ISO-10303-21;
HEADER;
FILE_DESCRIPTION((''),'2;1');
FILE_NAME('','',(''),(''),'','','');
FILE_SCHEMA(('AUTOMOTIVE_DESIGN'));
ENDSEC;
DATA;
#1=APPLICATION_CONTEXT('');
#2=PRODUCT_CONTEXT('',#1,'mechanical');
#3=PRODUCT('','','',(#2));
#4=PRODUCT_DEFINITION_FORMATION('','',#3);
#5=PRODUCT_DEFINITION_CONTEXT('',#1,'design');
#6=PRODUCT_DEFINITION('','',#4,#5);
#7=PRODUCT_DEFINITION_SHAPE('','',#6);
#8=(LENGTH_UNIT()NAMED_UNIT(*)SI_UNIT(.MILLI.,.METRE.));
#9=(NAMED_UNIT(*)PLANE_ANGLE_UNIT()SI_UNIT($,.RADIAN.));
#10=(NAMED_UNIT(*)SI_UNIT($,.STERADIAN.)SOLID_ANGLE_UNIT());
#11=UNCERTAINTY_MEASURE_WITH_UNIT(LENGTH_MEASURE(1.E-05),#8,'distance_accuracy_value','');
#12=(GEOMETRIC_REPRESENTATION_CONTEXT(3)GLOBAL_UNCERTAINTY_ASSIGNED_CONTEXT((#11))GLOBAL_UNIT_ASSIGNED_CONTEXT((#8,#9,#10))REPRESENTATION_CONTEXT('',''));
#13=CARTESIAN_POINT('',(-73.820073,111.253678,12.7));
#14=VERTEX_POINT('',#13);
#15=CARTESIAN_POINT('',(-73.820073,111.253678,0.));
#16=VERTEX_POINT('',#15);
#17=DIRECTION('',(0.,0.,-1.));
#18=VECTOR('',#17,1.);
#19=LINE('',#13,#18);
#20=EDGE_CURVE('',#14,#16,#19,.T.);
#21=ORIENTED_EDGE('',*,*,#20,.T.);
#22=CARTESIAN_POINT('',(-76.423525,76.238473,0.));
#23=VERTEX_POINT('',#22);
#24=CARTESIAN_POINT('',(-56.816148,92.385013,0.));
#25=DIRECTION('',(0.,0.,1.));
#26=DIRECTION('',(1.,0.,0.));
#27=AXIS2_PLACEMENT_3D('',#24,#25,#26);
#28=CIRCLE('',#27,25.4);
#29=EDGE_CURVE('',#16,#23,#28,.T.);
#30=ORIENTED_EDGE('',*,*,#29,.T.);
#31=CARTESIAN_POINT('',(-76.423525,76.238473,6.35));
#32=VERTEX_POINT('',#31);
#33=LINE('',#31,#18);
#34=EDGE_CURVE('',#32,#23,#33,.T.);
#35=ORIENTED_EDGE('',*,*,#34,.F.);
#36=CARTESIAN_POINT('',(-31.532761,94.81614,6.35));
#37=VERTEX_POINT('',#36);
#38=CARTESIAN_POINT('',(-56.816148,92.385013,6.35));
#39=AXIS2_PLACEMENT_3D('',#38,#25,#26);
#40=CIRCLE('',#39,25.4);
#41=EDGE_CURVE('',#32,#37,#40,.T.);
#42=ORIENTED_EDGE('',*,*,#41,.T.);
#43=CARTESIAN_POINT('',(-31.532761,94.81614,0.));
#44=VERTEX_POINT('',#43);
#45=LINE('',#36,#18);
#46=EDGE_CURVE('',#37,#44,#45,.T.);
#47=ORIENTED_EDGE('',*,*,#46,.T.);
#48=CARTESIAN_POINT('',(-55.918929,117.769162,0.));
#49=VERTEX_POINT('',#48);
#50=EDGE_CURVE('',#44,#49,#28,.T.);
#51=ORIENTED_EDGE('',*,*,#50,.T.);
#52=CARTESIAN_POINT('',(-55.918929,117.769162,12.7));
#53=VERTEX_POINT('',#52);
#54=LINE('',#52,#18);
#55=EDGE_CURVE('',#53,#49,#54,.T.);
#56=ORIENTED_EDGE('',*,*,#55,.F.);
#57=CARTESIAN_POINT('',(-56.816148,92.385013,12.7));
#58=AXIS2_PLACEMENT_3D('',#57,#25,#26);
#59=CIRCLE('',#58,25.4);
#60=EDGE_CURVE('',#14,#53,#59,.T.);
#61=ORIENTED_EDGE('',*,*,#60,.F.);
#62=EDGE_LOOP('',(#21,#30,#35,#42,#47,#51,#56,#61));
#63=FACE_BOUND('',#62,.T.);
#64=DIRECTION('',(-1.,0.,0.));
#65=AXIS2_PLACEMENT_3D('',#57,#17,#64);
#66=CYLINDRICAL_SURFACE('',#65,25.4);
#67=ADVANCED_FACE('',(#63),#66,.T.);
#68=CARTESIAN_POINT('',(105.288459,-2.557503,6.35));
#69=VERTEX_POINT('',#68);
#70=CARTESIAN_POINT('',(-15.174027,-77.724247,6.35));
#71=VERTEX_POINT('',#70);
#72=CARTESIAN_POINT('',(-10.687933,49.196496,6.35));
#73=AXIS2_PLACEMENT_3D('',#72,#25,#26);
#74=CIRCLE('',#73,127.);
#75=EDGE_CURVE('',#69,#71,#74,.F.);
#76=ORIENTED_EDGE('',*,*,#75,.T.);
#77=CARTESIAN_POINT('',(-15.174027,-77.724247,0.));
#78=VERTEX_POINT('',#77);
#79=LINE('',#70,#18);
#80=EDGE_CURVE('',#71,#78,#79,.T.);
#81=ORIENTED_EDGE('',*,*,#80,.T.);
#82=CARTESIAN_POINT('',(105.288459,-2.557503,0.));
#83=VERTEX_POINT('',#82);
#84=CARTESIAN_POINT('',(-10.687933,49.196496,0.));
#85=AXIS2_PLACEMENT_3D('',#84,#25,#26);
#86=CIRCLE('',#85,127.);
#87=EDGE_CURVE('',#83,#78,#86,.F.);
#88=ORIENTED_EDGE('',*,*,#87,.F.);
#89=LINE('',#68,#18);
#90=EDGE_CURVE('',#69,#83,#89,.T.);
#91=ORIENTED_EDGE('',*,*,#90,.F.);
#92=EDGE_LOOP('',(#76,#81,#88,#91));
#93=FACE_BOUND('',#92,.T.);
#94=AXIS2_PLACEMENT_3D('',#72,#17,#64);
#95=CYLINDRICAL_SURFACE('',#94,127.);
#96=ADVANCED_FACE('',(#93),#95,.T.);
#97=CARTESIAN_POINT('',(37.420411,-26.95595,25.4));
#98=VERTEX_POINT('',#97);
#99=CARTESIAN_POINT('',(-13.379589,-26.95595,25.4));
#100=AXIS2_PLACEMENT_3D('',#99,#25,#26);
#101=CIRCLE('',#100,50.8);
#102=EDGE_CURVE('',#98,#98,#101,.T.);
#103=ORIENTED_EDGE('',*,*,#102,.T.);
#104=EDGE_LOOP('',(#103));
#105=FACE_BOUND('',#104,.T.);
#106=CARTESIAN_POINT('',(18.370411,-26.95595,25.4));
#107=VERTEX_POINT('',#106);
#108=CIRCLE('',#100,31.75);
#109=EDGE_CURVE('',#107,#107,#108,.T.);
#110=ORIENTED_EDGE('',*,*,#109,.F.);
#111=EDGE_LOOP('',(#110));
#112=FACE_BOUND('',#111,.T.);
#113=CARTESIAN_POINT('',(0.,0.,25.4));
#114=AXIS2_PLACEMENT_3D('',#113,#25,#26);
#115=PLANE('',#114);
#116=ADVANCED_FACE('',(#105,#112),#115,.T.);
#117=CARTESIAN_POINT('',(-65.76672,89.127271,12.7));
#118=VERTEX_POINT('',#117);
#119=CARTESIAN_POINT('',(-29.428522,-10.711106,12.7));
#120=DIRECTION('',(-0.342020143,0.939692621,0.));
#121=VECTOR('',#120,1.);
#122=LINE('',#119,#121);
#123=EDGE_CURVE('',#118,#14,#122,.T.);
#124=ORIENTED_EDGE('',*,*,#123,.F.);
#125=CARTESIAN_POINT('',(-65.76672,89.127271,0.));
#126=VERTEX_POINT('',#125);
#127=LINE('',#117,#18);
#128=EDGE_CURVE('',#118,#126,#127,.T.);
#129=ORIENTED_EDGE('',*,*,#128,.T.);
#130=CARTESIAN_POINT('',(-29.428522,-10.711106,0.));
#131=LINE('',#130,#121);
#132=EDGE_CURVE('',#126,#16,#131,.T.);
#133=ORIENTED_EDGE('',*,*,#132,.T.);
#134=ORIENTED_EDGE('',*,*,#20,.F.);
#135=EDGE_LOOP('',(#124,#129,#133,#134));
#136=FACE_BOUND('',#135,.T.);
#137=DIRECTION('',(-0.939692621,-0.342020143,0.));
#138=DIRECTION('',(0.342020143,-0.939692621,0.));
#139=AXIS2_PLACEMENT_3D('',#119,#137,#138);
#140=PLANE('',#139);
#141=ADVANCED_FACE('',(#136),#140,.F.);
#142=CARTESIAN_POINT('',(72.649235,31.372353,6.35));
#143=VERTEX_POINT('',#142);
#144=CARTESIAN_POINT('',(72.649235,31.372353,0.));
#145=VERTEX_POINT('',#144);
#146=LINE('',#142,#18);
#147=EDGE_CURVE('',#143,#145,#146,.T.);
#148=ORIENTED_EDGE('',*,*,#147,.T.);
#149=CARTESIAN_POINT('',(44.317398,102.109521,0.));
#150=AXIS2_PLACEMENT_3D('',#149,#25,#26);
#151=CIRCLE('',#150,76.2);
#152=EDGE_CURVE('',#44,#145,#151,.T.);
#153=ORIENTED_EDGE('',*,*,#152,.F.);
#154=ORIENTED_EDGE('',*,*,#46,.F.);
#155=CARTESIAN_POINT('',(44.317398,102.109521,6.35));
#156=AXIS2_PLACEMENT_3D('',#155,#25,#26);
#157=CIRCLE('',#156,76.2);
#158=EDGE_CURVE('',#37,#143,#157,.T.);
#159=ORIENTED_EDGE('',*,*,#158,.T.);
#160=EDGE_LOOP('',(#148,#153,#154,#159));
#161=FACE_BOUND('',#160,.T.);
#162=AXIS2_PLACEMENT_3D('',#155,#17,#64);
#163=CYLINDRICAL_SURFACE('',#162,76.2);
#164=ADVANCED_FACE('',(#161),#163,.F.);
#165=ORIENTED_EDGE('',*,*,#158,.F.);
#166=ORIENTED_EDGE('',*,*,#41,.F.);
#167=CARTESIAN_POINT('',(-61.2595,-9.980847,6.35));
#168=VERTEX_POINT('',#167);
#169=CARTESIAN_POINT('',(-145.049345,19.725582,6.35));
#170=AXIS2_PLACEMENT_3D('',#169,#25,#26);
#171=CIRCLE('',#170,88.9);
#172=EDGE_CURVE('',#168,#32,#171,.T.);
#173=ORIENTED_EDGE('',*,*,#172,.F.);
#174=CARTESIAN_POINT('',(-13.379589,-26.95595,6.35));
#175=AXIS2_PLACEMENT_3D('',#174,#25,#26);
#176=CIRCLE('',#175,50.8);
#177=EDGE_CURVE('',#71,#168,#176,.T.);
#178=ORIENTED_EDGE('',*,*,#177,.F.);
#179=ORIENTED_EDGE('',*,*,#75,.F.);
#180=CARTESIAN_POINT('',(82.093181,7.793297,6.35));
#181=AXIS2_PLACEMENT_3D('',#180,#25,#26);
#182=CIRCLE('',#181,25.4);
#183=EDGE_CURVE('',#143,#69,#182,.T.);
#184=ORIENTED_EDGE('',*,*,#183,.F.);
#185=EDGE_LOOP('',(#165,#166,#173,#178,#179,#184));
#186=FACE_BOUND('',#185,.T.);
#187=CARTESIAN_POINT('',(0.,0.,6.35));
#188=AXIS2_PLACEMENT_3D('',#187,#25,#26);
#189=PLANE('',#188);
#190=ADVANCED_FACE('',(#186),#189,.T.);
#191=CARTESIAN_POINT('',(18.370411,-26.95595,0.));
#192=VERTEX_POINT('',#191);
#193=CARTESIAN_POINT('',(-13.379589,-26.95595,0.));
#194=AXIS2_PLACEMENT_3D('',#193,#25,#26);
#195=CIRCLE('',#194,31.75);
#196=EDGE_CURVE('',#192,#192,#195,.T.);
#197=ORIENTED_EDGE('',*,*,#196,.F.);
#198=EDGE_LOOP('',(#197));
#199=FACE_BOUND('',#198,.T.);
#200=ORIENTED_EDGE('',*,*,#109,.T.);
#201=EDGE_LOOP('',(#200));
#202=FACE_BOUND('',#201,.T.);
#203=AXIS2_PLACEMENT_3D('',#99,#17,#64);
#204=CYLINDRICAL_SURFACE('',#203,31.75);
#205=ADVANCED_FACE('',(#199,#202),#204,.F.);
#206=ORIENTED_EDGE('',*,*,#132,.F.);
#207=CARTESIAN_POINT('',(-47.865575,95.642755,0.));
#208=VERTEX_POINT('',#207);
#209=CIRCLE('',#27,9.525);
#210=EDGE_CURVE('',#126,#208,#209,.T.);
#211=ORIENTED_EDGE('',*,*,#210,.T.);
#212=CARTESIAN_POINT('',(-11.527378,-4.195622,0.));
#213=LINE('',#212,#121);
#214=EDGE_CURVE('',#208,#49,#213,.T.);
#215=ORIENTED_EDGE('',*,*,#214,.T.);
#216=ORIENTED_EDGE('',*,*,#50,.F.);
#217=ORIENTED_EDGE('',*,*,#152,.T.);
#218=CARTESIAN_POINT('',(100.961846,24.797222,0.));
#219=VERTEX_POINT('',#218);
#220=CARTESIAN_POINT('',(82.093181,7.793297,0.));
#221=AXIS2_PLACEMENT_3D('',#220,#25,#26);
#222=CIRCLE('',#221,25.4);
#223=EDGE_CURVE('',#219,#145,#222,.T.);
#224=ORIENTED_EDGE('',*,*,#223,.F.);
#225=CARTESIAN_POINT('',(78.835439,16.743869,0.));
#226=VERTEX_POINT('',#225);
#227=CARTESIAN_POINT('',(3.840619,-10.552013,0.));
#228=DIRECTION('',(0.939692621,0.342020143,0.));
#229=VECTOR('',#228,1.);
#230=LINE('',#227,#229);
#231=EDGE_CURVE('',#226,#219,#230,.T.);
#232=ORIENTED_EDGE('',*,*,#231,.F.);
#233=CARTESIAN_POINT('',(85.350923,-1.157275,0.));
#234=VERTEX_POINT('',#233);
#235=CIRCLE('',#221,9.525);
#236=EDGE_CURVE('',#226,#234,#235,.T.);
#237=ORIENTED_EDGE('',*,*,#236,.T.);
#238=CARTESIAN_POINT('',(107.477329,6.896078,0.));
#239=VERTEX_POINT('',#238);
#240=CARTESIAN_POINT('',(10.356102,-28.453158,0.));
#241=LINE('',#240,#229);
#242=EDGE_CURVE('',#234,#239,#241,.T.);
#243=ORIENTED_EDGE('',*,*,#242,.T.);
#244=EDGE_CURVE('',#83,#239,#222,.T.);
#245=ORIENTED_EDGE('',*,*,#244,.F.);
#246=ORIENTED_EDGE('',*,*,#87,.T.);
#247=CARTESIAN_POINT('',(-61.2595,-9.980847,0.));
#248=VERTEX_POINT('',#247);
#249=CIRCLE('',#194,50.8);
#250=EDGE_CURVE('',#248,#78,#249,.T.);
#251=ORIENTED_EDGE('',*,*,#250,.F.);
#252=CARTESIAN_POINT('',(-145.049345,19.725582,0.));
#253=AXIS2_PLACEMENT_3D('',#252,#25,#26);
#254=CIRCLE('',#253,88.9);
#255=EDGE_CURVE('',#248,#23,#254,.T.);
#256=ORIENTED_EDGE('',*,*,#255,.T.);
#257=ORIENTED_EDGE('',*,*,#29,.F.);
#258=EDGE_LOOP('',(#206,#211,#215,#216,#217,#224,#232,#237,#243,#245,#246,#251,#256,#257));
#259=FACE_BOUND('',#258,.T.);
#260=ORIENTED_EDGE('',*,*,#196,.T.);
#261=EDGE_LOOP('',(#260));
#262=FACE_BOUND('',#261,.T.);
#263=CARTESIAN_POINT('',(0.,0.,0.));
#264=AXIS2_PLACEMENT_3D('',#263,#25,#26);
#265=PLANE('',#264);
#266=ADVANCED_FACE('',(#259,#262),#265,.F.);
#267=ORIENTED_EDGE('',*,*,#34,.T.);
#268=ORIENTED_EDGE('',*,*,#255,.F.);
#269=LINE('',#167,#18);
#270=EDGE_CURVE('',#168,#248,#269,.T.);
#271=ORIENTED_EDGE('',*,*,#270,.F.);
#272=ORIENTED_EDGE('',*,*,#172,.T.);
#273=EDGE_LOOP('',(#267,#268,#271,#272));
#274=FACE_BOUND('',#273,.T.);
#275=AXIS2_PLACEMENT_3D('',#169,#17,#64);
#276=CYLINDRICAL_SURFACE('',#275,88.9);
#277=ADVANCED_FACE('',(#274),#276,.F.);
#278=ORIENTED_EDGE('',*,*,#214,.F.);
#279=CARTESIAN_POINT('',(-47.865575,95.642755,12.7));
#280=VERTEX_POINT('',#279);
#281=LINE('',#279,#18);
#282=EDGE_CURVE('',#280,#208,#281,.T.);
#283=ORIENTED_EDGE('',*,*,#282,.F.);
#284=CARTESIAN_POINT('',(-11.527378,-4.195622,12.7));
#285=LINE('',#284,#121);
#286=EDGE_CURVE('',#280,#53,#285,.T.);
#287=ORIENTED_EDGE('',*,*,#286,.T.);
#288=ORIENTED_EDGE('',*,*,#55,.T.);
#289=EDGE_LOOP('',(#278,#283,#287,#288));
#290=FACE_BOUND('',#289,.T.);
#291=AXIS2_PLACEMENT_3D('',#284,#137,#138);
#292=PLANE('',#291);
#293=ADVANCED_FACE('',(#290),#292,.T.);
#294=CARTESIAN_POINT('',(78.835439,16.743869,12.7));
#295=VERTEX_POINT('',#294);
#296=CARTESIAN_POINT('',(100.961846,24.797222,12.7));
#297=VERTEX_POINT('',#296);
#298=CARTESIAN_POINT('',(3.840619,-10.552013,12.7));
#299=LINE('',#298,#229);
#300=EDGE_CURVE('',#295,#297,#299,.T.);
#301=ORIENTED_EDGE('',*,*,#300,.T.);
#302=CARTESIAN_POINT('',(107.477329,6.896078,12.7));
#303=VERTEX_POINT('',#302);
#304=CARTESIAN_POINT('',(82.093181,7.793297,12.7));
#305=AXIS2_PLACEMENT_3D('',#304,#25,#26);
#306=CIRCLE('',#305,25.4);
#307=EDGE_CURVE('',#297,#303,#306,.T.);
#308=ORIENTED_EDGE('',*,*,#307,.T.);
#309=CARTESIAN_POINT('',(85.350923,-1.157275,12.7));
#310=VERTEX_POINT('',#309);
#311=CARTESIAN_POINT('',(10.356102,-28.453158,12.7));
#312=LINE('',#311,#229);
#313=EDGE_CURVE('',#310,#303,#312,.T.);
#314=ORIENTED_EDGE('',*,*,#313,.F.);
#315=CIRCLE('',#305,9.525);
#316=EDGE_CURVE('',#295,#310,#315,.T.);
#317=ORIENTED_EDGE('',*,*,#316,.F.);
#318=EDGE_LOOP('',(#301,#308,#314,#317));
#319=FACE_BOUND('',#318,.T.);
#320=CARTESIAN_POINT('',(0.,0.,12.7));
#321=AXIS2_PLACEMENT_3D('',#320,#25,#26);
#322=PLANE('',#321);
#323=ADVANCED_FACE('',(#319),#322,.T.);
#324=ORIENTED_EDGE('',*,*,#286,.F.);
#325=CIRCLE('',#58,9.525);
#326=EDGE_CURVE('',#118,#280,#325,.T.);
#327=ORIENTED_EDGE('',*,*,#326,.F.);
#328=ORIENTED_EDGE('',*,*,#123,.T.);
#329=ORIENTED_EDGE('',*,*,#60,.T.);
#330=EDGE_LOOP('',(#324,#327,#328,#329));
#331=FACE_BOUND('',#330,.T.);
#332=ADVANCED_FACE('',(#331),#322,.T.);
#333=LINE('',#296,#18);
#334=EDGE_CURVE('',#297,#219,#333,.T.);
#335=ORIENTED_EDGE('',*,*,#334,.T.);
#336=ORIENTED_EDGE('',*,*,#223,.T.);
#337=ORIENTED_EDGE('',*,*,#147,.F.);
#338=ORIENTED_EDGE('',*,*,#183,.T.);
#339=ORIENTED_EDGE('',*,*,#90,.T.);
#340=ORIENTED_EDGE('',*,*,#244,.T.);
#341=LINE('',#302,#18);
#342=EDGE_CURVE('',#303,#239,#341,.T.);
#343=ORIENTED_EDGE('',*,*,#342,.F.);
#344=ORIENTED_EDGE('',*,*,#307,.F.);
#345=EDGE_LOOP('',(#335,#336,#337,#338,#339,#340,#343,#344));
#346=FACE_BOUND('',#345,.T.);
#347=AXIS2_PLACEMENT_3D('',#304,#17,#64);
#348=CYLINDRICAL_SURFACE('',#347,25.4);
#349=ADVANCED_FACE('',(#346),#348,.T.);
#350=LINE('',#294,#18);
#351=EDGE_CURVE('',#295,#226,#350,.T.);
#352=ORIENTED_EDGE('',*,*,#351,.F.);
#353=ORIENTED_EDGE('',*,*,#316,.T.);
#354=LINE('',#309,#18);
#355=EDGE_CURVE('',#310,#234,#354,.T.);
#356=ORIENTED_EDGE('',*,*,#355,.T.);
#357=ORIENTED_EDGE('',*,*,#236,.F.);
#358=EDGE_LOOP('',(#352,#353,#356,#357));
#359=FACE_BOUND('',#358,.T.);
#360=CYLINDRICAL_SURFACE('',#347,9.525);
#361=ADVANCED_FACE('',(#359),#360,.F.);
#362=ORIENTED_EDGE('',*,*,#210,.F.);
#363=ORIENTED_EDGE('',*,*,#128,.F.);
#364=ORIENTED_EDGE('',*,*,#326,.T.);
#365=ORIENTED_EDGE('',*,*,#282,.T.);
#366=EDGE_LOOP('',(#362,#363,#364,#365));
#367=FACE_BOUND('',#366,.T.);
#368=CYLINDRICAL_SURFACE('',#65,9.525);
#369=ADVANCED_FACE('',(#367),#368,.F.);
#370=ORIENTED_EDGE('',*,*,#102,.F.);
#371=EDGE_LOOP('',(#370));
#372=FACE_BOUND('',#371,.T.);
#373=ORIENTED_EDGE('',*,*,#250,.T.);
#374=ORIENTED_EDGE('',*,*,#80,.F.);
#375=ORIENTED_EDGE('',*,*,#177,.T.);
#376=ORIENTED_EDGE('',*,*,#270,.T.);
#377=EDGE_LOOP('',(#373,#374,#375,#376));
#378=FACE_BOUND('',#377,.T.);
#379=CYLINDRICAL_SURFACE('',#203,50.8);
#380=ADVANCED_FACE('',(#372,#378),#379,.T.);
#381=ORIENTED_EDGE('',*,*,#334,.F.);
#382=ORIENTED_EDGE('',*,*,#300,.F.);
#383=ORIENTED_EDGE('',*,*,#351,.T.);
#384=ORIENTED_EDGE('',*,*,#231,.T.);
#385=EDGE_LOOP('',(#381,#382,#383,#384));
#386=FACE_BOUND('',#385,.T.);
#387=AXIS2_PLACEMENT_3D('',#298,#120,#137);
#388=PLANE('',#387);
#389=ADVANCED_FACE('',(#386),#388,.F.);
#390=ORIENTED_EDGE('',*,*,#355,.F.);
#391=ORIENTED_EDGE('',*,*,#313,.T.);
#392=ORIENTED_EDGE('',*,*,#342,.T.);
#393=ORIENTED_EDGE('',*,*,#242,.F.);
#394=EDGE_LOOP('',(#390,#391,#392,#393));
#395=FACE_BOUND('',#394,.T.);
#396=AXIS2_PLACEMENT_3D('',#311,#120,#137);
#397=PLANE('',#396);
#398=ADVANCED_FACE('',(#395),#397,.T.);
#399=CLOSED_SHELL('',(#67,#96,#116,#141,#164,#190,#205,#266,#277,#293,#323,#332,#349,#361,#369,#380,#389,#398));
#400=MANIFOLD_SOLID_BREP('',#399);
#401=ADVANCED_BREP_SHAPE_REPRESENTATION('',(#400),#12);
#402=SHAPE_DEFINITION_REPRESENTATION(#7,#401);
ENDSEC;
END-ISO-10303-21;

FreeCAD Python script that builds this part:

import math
import FreeCAD as App
import Part
import Sketcher
Q = App.Units.Quantity

doc = App.newDocument("Part")
body = doc.addObject("PartDesign::Body", "Body")

sketch1 = body.newObject("Sketcher::SketchObject", "Sketch")
sketch1.AttachmentSupport = (doc.getObject("XY_Plane"), [""])
sketch1.MapMode = "FlatFace"
sketch1.addGeometry([
    Part.ArcOfCircle(Part.Circle(App.Vector(44, 102, 0), App.Vector(0, 0, 1), 76), math.radians(-175), math.radians(-68)),
    Part.ArcOfCircle(Part.Circle(App.Vector(-57, 92, 0), App.Vector(0, 0, 1), 25), math.radians(-141), math.radians(5)),
    Part.ArcOfCircle(Part.Circle(App.Vector(-145, 20, 0), App.Vector(0, 0, 1), 89), math.radians(-20), math.radians(39)),
    Part.ArcOfCircle(Part.Circle(App.Vector(-13, -27, 0), App.Vector(0, 0, 1), 51), math.radians(0), math.radians(160)),
    Part.ArcOfCircle(Part.Circle(App.Vector(-13, -27, 0), App.Vector(0, 0, 1), 51), math.radians(-92), math.radians(0)),
    Part.ArcOfCircle(Part.Circle(App.Vector(-11, 49, 0), App.Vector(0, 0, 1), 127), math.radians(-92), math.radians(-24)),
    Part.ArcOfCircle(Part.Circle(App.Vector(82, 8, 0), App.Vector(0, 0, 1), 25), math.radians(112), math.radians(336)),
], False)
sketch1.addConstraint([
    Sketcher.Constraint("Tangent", 0, 1, 1, 2),
    Sketcher.Constraint("Tangent", 1, 1, 2, 2),
    Sketcher.Constraint("Tangent", 2, 1, 3, 2),
    Sketcher.Constraint("Tangent", 3, 1, 4, 2),
    Sketcher.Constraint("Tangent", 4, 1, 5, 1),
    Sketcher.Constraint("Tangent", 5, 2, 6, 2),
    Sketcher.Constraint("Tangent", 6, 1, 0, 2),
    Sketcher.Constraint("Equal", 3, 4),
    Sketcher.Constraint("Equal", 1, 6),
    Sketcher.Constraint("Horizontal", 4, 3, 3, 1),
    Sketcher.Constraint("Radius", 0, Q("3 in")),
    Sketcher.Constraint("Radius", 1, Q("1 in")),
    Sketcher.Constraint("Radius", 3, Q("2 in")),
    Sketcher.Constraint("Radius", 5, Q("5 in")),
    Sketcher.Constraint("Radius", 2, Q("3.5 in")),
    Sketcher.Constraint("DistanceX", 1, 1, -1, 1, Q("3.0088002 in")),
    Sketcher.Constraint("DistanceX", 2, 1, -1, 1, 61.2595),
    Sketcher.Constraint("DistanceY", 6, 3, 5, 3, 41.403199),
    Sketcher.Constraint("DistanceY", 4, 1, 2, 1, 67.7434),
    Sketcher.Constraint("DistanceY", -1, 1, 0, 3, 102.109521),
    Sketcher.Constraint("DistanceX", 3, 3, -1, 1, 13.379589),
])
pad1 = body.newObject("PartDesign::Pad", "Pad")
pad1.Profile = sketch1
pad1.Length = Q("0.25 in")

sketch2 = body.newObject("Sketcher::SketchObject", "Sketch001")
sketch2.AttachmentSupport = (doc.getObject("XY_Plane"), [""])
sketch2.MapMode = "FlatFace"
sketch2.addGeometry([
    Part.ArcOfCircle(Part.Circle(App.Vector(-57, 92, 0), App.Vector(0, 0, 1), 10), math.radians(-160), math.radians(20)),
    Part.LineSegment(App.Vector(-66, 89, 0), App.Vector(-74, 111, 0)),
    Part.ArcOfCircle(Part.Circle(App.Vector(-57, 92, 0), App.Vector(0, 0, 1), 25), math.radians(132), math.radians(448)),
    Part.LineSegment(App.Vector(-56, 118, 0), App.Vector(-48, 96, 0)),
    Part.ArcOfCircle(Part.Circle(App.Vector(82, 8, 0), App.Vector(0, 0, 1), 10), math.radians(110), math.radians(290)),
    Part.LineSegment(App.Vector(79, 17, 0), App.Vector(101, 25, 0)),
    Part.ArcOfCircle(Part.Circle(App.Vector(82, 8, 0), App.Vector(0, 0, 1), 25), math.radians(42), math.radians(358)),
    Part.LineSegment(App.Vector(107, 7, 0), App.Vector(85, -1, 0)),
], False)
sketch2.addConstraint([
    Sketcher.Constraint("Tangent", 0, 1, 1, 1),
    Sketcher.Constraint("Coincident", 1, 2, 2, 1),
    Sketcher.Constraint("Coincident", 2, 2, 3, 1),
    Sketcher.Constraint("Tangent", 3, 2, 0, 2),
    Sketcher.Constraint("Tangent", 4, 1, 5, 1),
    Sketcher.Constraint("Coincident", 5, 2, 6, 1),
    Sketcher.Constraint("Coincident", 6, 2, 7, 1),
    Sketcher.Constraint("Tangent", 7, 2, 4, 2),
    Sketcher.Constraint("Coincident", 2, 3, 0, 3),
    Sketcher.Constraint("Coincident", 6, 3, 4, 3),
    Sketcher.Constraint("Equal", 0, 4),
    Sketcher.Constraint("Equal", 2, 6),
    Sketcher.Constraint("Parallel", 1, 3),
    Sketcher.Constraint("Perpendicular", 3, 5),
    Sketcher.Constraint("Parallel", 5, 7),
    Sketcher.Constraint("Radius", 2, Q("1 in")),
    Sketcher.Constraint("Angle", 1, Q("110 deg")),
    Sketcher.Constraint("Radius", 0, Q("0.375 in")),
    Sketcher.Constraint("DistanceX", 0, 1, 4, 3, 147.859901),
    Sketcher.Constraint("DistanceX", -1, 1, 4, 3, 82.093181),
    Sketcher.Constraint("DistanceY", -1, 1, 0, 1, 89.127271),
    Sketcher.Constraint("DistanceY", -1, 1, 4, 1, 16.743869),
])
pad2 = body.newObject("PartDesign::Pad", "Pad001")
pad2.Profile = sketch2
pad2.Length = Q("0.5 in")

sketch3 = body.newObject("Sketcher::SketchObject", "Sketch002")
sketch3.AttachmentSupport = (doc.getObject("XY_Plane"), [""])
sketch3.MapMode = "FlatFace"
sketch3.addGeometry([
    Part.Circle(App.Vector(-13, -27, 0), App.Vector(0, 0, 1), 51),
    Part.Circle(App.Vector(-13, -27, 0), App.Vector(0, 0, 1), 32),
], False)
sketch3.addConstraint([
    Sketcher.Constraint("Coincident", 1, 3, 0, 3),
    Sketcher.Constraint("Diameter", 0, Q("4 in")),
    Sketcher.Constraint("Diameter", 1, Q("2.5 in")),
    Sketcher.Constraint("DistanceX", 0, 3, -1, 1, 13.379589),
    Sketcher.Constraint("DistanceY", 0, 3, -1, 1, 26.95595),
])
pad3 = body.newObject("PartDesign::Pad", "Pad002")
pad3.Profile = sketch3
pad3.Length = Q("1 in")

doc.recompute()
